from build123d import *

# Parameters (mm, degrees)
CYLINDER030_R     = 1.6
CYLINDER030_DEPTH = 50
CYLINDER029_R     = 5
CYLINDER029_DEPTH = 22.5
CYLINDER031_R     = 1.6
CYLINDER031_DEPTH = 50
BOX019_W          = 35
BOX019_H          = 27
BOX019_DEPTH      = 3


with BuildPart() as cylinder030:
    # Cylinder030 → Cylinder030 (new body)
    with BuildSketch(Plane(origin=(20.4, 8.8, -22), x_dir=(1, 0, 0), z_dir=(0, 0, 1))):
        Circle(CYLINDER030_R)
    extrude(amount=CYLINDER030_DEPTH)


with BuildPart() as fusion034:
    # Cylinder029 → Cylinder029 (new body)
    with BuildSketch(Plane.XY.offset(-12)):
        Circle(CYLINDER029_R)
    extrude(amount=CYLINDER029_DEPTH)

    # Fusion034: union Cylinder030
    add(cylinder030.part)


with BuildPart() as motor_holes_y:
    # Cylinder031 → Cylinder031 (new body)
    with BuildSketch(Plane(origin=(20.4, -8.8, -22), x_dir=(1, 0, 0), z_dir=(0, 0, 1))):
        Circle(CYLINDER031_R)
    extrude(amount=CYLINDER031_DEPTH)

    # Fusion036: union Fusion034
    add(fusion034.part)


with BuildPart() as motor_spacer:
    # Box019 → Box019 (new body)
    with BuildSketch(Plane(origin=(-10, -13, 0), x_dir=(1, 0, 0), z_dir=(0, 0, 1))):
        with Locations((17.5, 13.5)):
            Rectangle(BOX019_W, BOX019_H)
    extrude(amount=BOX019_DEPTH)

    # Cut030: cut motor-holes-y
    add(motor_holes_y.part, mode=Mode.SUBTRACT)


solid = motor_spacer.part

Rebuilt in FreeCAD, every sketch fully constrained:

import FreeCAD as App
import Part
import Sketcher

V = App.Vector

doc = App.newDocument("Part")
body = doc.addObject("PartDesign::Body", "Body")

sketch1 = body.newObject("Sketcher::SketchObject", "Sketch")
sketch1.AttachmentSupport = (doc.getObject("XY_Plane"), [""])
sketch1.MapMode = "FlatFace"
sketch1.AttachmentOffset = App.Placement(V(0, 0, -22), App.Rotation())
sketch1.addGeometry(Part.Circle(V(20.4, 8.8, 0), V(0, 0, 1), 1.6), False)
sketch1.addConstraint(Sketcher.Constraint("Diameter", 0, 3.2))
sketch1.addConstraint(Sketcher.Constraint("DistanceX", -1, 1, 0, 3, 20.4))
sketch1.addConstraint(Sketcher.Constraint("DistanceY", -1, 1, 0, 3, 8.8))
pad1 = body.newObject("PartDesign::Pad", "Pad")
pad1.Profile = sketch1
pad1.Length = 50
body2 = doc.addObject("PartDesign::Body", "Body001")
body2.AllowCompound = True

sketch2 = body2.newObject("Sketcher::SketchObject", "Sketch001")
sketch2.AttachmentSupport = (doc.getObject("XY_Plane001"), [""])
sketch2.MapMode = "FlatFace"
sketch2.AttachmentOffset = App.Placement(V(0, 0, -12), App.Rotation())
sketch2.addGeometry(Part.Circle(V(0, 0, 0), V(0, 0, 1), 5), False)
sketch2.addConstraint(Sketcher.Constraint("Coincident", 0, 3, -1, 1))
sketch2.addConstraint(Sketcher.Constraint("Diameter", 0, 10.0))
pad2 = body2.newObject("PartDesign::Pad", "Pad001")
pad2.Profile = sketch2
pad2.Length = 22.5
doc.recompute()

boolean = body2.newObject("PartDesign::Boolean", "Boolean")
boolean.Type = "Fuse"
boolean.addObjects([body])
body3 = doc.addObject("PartDesign::Body", "Body002")
body3.AllowCompound = True

sketch3 = body3.newObject("Sketcher::SketchObject", "Sketch002")
sketch3.AttachmentSupport = (doc.getObject("XY_Plane002"), [""])
sketch3.MapMode = "FlatFace"
sketch3.AttachmentOffset = App.Placement(V(0, 0, -22), App.Rotation())
sketch3.addGeometry(Part.Circle(V(20.4, -8.8, 0), V(0, 0, 1), 1.6), False)
sketch3.addConstraint(Sketcher.Constraint("Diameter", 0, 3.2))
sketch3.addConstraint(Sketcher.Constraint("DistanceX", -1, 1, 0, 3, 20.4))
sketch3.addConstraint(Sketcher.Constraint("DistanceY", 0, 3, -1, 1, 8.8))
pad3 = body3.newObject("PartDesign::Pad", "Pad002")
pad3.Profile = sketch3
pad3.Length = 50
doc.recompute()

boolean2 = body3.newObject("PartDesign::Boolean", "Boolean001")
boolean2.Type = "Fuse"
boolean2.addObjects([body2])
body4 = doc.addObject("PartDesign::Body", "Body003")

sketch4 = body4.newObject("Sketcher::SketchObject", "Sketch003")
sketch4.AttachmentSupport = (doc.getObject("XY_Plane003"), [""])
sketch4.MapMode = "FlatFace"
sketch4.addGeometry(Part.LineSegment(V(-10, 14, 0), V(-10, -13, 0)), False)
sketch4.addGeometry(Part.LineSegment(V(-10, -13, 0), V(25, -13, 0)), False)
sketch4.addGeometry(Part.LineSegment(V(25, -13, 0), V(25, 14, 0)), False)
sketch4.addGeometry(Part.LineSegment(V(25, 14, 0), V(-10, 14, 0)), False)
sketch4.addConstraint(Sketcher.Constraint("Coincident", 0, 2, 1, 1))
sketch4.addConstraint(Sketcher.Constraint("Coincident", 1, 2, 2, 1))
sketch4.addConstraint(Sketcher.Constraint("Coincident", 2, 2, 3, 1))
sketch4.addConstraint(Sketcher.Constraint("Coincident", 3, 2, 0, 1))
sketch4.addConstraint(Sketcher.Constraint("Vertical", 0))
sketch4.addConstraint(Sketcher.Constraint("Horizontal", 1))
sketch4.addConstraint(Sketcher.Constraint("Vertical", 2))
sketch4.addConstraint(Sketcher.Constraint("Horizontal", 3))
sketch4.addConstraint(Sketcher.Constraint("DistanceX", 1, 1, 1, 2, 35.0))
sketch4.addConstraint(Sketcher.Constraint("DistanceY", 0, 2, 0, 1, 27.0))
sketch4.addConstraint(Sketcher.Constraint("DistanceX", 0, 2, -1, 1, 10.0))
sketch4.addConstraint(Sketcher.Constraint("DistanceY", 0, 2, -1, 1, 13.0))
pad4 = body4.newObject("PartDesign::Pad", "Pad003")
pad4.Profile = sketch4
pad4.Length = 3
doc.recompute()

boolean3 = body4.newObject("PartDesign::Boolean", "Boolean002")
boolean3.Type = "Cut"
boolean3.addObjects([body3])

doc.recompute()
